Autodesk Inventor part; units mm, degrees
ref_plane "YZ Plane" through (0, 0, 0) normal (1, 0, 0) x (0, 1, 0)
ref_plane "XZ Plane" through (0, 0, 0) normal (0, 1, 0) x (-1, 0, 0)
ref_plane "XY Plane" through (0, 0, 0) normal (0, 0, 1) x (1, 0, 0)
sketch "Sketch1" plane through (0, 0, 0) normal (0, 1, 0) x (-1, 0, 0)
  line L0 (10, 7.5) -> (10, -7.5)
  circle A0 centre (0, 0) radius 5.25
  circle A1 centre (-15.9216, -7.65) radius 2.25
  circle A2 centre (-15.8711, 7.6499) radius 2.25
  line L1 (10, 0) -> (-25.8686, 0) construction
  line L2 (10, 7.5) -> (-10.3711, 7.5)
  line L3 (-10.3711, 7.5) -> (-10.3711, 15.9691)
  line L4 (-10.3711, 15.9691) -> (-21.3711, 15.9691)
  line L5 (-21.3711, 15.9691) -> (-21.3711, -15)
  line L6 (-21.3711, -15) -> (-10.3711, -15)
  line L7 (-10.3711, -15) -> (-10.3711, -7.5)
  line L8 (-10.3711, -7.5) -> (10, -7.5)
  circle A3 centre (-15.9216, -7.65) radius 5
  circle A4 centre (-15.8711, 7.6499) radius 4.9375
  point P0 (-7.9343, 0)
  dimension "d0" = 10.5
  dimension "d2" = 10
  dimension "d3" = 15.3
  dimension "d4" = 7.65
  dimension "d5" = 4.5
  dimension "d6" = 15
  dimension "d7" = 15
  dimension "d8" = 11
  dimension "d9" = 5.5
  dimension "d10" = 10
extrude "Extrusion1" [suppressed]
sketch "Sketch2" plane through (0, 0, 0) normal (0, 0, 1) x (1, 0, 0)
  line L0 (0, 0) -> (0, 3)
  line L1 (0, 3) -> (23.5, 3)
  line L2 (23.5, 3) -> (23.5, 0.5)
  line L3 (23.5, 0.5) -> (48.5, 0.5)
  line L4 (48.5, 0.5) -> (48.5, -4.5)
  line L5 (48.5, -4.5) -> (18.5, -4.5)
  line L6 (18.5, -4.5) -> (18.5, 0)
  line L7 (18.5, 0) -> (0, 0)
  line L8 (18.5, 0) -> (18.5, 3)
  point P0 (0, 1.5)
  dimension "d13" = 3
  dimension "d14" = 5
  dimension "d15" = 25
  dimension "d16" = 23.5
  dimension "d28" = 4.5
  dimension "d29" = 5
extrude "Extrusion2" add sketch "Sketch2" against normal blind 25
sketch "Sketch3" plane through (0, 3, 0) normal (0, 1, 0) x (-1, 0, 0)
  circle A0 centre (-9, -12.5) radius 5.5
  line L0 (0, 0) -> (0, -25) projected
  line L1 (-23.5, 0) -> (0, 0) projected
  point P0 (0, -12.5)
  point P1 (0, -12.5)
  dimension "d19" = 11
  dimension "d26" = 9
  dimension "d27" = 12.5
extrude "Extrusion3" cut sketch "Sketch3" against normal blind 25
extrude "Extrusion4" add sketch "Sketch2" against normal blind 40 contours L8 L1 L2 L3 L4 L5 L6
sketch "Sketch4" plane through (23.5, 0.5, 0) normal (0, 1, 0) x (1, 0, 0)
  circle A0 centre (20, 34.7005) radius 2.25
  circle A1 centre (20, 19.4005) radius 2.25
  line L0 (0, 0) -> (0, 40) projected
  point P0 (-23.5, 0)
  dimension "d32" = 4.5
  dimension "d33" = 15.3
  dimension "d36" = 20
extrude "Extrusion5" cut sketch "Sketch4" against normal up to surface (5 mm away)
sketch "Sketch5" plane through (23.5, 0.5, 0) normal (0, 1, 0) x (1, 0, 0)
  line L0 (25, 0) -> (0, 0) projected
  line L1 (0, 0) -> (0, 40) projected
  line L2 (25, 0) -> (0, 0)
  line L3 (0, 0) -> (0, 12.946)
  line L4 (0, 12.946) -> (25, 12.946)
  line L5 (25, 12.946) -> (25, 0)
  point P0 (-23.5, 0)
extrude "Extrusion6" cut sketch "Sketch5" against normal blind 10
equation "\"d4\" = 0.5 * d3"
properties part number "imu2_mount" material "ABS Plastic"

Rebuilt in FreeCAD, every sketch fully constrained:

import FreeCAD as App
import Part
import Sketcher
from FreeCAD import Vector
Q = App.Units.Quantity

doc = App.newDocument("Part")
body = doc.addObject("PartDesign::Body", "Body")

# Sketch on XY plane
sketch1 = body.newObject("Sketcher::SketchObject", "Sketch")
sketch1.AttachmentSupport = (doc.getObject("XY_Plane"), [""])
sketch1.MapMode = "FlatFace"
sketch1.addGeometry(Part.LineSegment(Vector(0, 3, 0), Vector(0, 0, 0)), False)
sketch1.addGeometry(Part.LineSegment(Vector(0, 0, 0), Vector(18.5, 0, 0)), False)
sketch1.addGeometry(Part.LineSegment(Vector(18.5, 0, 0), Vector(18.5, -4.5, 0)), False)
sketch1.addGeometry(Part.LineSegment(Vector(18.5, -4.5, 0), Vector(48.5, -4.5, 0)), False)
sketch1.addGeometry(Part.LineSegment(Vector(48.5, -4.5, 0), Vector(48.5, 0.5, 0)), False)
sketch1.addGeometry(Part.LineSegment(Vector(48.5, 0.5, 0), Vector(23.5, 0.5, 0)), False)
sketch1.addGeometry(Part.LineSegment(Vector(23.5, 0.5, 0), Vector(23.5, 3, 0)), False)
sketch1.addGeometry(Part.LineSegment(Vector(23.5, 3, 0), Vector(0, 3, 0)), False)
sketch1.addConstraint(Sketcher.Constraint("Coincident", 0, 2, 1, 1))
sketch1.addConstraint(Sketcher.Constraint("Coincident", 1, 2, 2, 1))
sketch1.addConstraint(Sketcher.Constraint("Coincident", 2, 2, 3, 1))
sketch1.addConstraint(Sketcher.Constraint("Coincident", 3, 2, 4, 1))
sketch1.addConstraint(Sketcher.Constraint("Coincident", 4, 2, 5, 1))
sketch1.addConstraint(Sketcher.Constraint("Coincident", 5, 2, 6, 1))
sketch1.addConstraint(Sketcher.Constraint("Coincident", 6, 2, 7, 1))
sketch1.addConstraint(Sketcher.Constraint("Coincident", 7, 2, 0, 1))
sketch1.addConstraint(Sketcher.Constraint("Vertical", 0))
sketch1.addConstraint(Sketcher.Constraint("Horizontal", 1))
sketch1.addConstraint(Sketcher.Constraint("Vertical", 2))
sketch1.addConstraint(Sketcher.Constraint("Horizontal", 3))
sketch1.addConstraint(Sketcher.Constraint("Vertical", 4))
sketch1.addConstraint(Sketcher.Constraint("Horizontal", 5))
sketch1.addConstraint(Sketcher.Constraint("Vertical", 6))
sketch1.addConstraint(Sketcher.Constraint("Horizontal", 7))
sketch1.addConstraint(Sketcher.Constraint("Coincident", 0, 2, -1, 1))
sketch1.addConstraint(Sketcher.Constraint("DistanceX", 5, 2, 5, 1, Q("25 mm")))
sketch1.addConstraint(Sketcher.Constraint("DistanceY", 0, 2, 0, 1, Q("3 mm")))
sketch1.addConstraint(Sketcher.Constraint("DistanceY", 4, 1, 4, 2, Q("5 mm")))
sketch1.addConstraint(Sketcher.Constraint("DistanceX", 7, 2, 7, 1, Q("23.5 mm")))
sketch1.addConstraint(Sketcher.Constraint("DistanceY", 2, 2, 2, 1, Q("4.5 mm")))
sketch1.addConstraint(Sketcher.Constraint("DistanceX", 1, 2, 5, 2, Q("5 mm")))
pad1 = body.newObject("PartDesign::Pad", "Pad")
pad1.Profile = sketch1
pad1.Length = 25
pad1.Reversed = True

# Sketch on XZ plane
sketch2 = body.newObject("Sketcher::SketchObject", "Sketch001")
sketch2.AttachmentSupport = (doc.getObject("XZ_Plane"), [""])
sketch2.MapMode = "FlatFace"
sketch2.AttachmentOffset = App.Placement(Vector(0, 0, -3), App.Rotation())
sketch2.addGeometry(Part.Circle(Vector(9, -12, 0), Vector(0, 0, 1), 6), False)
sketch2.addConstraint(Sketcher.Constraint("Diameter", 0, Q("11 mm")))
sketch2.addConstraint(Sketcher.Constraint("DistanceX", -1, 1, 0, 3, Q("9 mm")))
sketch2.addConstraint(Sketcher.Constraint("DistanceY", 0, 3, -1, 1, Q("12.5 mm")))
pocket1 = body.newObject("PartDesign::Pocket", "Pocket")
pocket1.Profile = sketch2
pocket1.Length = 25
pocket1.Reversed = True

# Sketch on XY plane
sketch3 = body.newObject("Sketcher::SketchObject", "Sketch002")
sketch3.AttachmentSupport = (doc.getObject("XY_Plane"), [""])
sketch3.MapMode = "FlatFace"
sketch3.addGeometry(Part.LineSegment(Vector(18.5, 3, 0), Vector(18.5, -4.5, 0)), False)
sketch3.addGeometry(Part.LineSegment(Vector(18.5, -4.5, 0), Vector(48.5, -4.5, 0)), False)
sketch3.addGeometry(Part.LineSegment(Vector(48.5, -4.5, 0), Vector(48.5, 0.5, 0)), False)
sketch3.addGeometry(Part.LineSegment(Vector(48.5, 0.5, 0), Vector(23.5, 0.5, 0)), False)
sketch3.addGeometry(Part.LineSegment(Vector(23.5, 0.5, 0), Vector(23.5, 3, 0)), False)
sketch3.addGeometry(Part.LineSegment(Vector(23.5, 3, 0), Vector(18.5, 3, 0)), False)
sketch3.addConstraint(Sketcher.Constraint("Coincident", 0, 2, 1, 1))
sketch3.addConstraint(Sketcher.Constraint("Coincident", 1, 2, 2, 1))
sketch3.addConstraint(Sketcher.Constraint("Coincident", 2, 2, 3, 1))
sketch3.addConstraint(Sketcher.Constraint("Coincident", 3, 2, 4, 1))
sketch3.addConstraint(Sketcher.Constraint("Coincident", 4, 2, 5, 1))
sketch3.addConstraint(Sketcher.Constraint("Coincident", 5, 2, 0, 1))
sketch3.addConstraint(Sketcher.Constraint("Vertical", 0))
sketch3.addConstraint(Sketcher.Constraint("Horizontal", 1))
sketch3.addConstraint(Sketcher.Constraint("Vertical", 2))
sketch3.addConstraint(Sketcher.Constraint("Horizontal", 3))
sketch3.addConstraint(Sketcher.Constraint("Vertical", 4))
sketch3.addConstraint(Sketcher.Constraint("Horizontal", 5))
sketch3.addConstraint(Sketcher.Constraint("Equal", 5, 2))
sketch3.addConstraint(Sketcher.Constraint("DistanceX", 3, 2, 3, 1, Q("25 mm")))
sketch3.addConstraint(Sketcher.Constraint("DistanceX", 5, 2, 5, 1, Q("5 mm")))
sketch3.addConstraint(Sketcher.Constraint("DistanceY", -1, 1, 4, 2, Q("3 mm")))
sketch3.addConstraint(Sketcher.Constraint("DistanceY", 0, 2, -1, 1, Q("4.5 mm")))
sketch3.addConstraint(Sketcher.Constraint("DistanceX", -1, 1, 3, 2, Q("23.5 mm")))
pad2 = body.newObject("PartDesign::Pad", "Pad001")
pad2.Profile = sketch3
pad2.Length = 40
pad2.Reversed = True

# Sketch on XZ plane
sketch4 = body.newObject("Sketcher::SketchObject", "Sketch003")
sketch4.AttachmentSupport = (doc.getObject("XZ_Plane"), [""])
sketch4.MapMode = "FlatFace"
sketch4.AttachmentOffset = App.Placement(Vector(0, 0, -0.5), App.Rotation())
sketch4.addGeometry(Part.Circle(Vector(43.5, -34.7, 0), Vector(0, 0, 1), 2.2), False)
sketch4.addGeometry(Part.Circle(Vector(43.5, -19.4, 0), Vector(0, 0, 1), 2.2), False)
sketch4.addConstraint(Sketcher.Constraint("Equal", 0, 1))
sketch4.addConstraint(Sketcher.Constraint("Vertical", 0, 3, 1, 3))
sketch4.addConstraint(Sketcher.Constraint("Diameter", 0, Q("4.5 mm")))
sketch4.addConstraint(Sketcher.Constraint("DistanceY", 0, 3, 1, 3, Q("15.3 mm")))
sketch4.addConstraint(Sketcher.Constraint("DistanceX", -1, 1, 0, 3, Q("43.5 mm")))
sketch4.addConstraint(Sketcher.Constraint("DistanceY", 0, 3, -1, 1, Q("34.7005 mm")))
pocket2 = body.newObject("PartDesign::Pocket", "Pocket001")
pocket2.Profile = sketch4
pocket2.Length = 5
pocket2.Reversed = True

# Sketch on XZ plane
sketch5 = body.newObject("Sketcher::SketchObject", "Sketch004")
sketch5.AttachmentSupport = (doc.getObject("XZ_Plane"), [""])
sketch5.MapMode = "FlatFace"
sketch5.AttachmentOffset = App.Placement(Vector(0, 0, -0.5), App.Rotation())
sketch5.addGeometry(Part.LineSegment(Vector(24, 0, 0), Vector(48, 0, 0)), False)
sketch5.addGeometry(Part.LineSegment(Vector(48, 0, 0), Vector(48, -13, 0)), False)
sketch5.addGeometry(Part.LineSegment(Vector(48, -13, 0), Vector(24, -13, 0)), False)
sketch5.addGeometry(Part.LineSegment(Vector(24, -13, 0), Vector(24, 0, 0)), False)
sketch5.addConstraint(Sketcher.Constraint("Coincident", 0, 2, 1, 1))
sketch5.addConstraint(Sketcher.Constraint("Coincident", 1, 2, 2, 1))
sketch5.addConstraint(Sketcher.Constraint("Coincident", 2, 2, 3, 1))
sketch5.addConstraint(Sketcher.Constraint("Coincident", 3, 2, 0, 1))
sketch5.addConstraint(Sketcher.Constraint("Horizontal", 0))
sketch5.addConstraint(Sketcher.Constraint("Vertical", 1))
sketch5.addConstraint(Sketcher.Constraint("Horizontal", 2))
sketch5.addConstraint(Sketcher.Constraint("Vertical", 3))
sketch5.addConstraint(Sketcher.Constraint("PointOnObject", 0, 2, -1))
sketch5.addConstraint(Sketcher.Constraint("DistanceX", 0, 1, 0, 2, Q("25 mm")))
sketch5.addConstraint(Sketcher.Constraint("DistanceX", -1, 1, 0, 2, Q("48.5 mm")))
sketch5.addConstraint(Sketcher.Constraint("DistanceY", 1, 2, 1, 1, Q("12.946 mm")))
pocket3 = body.newObject("PartDesign::Pocket", "Pocket002")
pocket3.Profile = sketch5
pocket3.Length = 10
pocket3.Reversed = True

doc.recompute()
